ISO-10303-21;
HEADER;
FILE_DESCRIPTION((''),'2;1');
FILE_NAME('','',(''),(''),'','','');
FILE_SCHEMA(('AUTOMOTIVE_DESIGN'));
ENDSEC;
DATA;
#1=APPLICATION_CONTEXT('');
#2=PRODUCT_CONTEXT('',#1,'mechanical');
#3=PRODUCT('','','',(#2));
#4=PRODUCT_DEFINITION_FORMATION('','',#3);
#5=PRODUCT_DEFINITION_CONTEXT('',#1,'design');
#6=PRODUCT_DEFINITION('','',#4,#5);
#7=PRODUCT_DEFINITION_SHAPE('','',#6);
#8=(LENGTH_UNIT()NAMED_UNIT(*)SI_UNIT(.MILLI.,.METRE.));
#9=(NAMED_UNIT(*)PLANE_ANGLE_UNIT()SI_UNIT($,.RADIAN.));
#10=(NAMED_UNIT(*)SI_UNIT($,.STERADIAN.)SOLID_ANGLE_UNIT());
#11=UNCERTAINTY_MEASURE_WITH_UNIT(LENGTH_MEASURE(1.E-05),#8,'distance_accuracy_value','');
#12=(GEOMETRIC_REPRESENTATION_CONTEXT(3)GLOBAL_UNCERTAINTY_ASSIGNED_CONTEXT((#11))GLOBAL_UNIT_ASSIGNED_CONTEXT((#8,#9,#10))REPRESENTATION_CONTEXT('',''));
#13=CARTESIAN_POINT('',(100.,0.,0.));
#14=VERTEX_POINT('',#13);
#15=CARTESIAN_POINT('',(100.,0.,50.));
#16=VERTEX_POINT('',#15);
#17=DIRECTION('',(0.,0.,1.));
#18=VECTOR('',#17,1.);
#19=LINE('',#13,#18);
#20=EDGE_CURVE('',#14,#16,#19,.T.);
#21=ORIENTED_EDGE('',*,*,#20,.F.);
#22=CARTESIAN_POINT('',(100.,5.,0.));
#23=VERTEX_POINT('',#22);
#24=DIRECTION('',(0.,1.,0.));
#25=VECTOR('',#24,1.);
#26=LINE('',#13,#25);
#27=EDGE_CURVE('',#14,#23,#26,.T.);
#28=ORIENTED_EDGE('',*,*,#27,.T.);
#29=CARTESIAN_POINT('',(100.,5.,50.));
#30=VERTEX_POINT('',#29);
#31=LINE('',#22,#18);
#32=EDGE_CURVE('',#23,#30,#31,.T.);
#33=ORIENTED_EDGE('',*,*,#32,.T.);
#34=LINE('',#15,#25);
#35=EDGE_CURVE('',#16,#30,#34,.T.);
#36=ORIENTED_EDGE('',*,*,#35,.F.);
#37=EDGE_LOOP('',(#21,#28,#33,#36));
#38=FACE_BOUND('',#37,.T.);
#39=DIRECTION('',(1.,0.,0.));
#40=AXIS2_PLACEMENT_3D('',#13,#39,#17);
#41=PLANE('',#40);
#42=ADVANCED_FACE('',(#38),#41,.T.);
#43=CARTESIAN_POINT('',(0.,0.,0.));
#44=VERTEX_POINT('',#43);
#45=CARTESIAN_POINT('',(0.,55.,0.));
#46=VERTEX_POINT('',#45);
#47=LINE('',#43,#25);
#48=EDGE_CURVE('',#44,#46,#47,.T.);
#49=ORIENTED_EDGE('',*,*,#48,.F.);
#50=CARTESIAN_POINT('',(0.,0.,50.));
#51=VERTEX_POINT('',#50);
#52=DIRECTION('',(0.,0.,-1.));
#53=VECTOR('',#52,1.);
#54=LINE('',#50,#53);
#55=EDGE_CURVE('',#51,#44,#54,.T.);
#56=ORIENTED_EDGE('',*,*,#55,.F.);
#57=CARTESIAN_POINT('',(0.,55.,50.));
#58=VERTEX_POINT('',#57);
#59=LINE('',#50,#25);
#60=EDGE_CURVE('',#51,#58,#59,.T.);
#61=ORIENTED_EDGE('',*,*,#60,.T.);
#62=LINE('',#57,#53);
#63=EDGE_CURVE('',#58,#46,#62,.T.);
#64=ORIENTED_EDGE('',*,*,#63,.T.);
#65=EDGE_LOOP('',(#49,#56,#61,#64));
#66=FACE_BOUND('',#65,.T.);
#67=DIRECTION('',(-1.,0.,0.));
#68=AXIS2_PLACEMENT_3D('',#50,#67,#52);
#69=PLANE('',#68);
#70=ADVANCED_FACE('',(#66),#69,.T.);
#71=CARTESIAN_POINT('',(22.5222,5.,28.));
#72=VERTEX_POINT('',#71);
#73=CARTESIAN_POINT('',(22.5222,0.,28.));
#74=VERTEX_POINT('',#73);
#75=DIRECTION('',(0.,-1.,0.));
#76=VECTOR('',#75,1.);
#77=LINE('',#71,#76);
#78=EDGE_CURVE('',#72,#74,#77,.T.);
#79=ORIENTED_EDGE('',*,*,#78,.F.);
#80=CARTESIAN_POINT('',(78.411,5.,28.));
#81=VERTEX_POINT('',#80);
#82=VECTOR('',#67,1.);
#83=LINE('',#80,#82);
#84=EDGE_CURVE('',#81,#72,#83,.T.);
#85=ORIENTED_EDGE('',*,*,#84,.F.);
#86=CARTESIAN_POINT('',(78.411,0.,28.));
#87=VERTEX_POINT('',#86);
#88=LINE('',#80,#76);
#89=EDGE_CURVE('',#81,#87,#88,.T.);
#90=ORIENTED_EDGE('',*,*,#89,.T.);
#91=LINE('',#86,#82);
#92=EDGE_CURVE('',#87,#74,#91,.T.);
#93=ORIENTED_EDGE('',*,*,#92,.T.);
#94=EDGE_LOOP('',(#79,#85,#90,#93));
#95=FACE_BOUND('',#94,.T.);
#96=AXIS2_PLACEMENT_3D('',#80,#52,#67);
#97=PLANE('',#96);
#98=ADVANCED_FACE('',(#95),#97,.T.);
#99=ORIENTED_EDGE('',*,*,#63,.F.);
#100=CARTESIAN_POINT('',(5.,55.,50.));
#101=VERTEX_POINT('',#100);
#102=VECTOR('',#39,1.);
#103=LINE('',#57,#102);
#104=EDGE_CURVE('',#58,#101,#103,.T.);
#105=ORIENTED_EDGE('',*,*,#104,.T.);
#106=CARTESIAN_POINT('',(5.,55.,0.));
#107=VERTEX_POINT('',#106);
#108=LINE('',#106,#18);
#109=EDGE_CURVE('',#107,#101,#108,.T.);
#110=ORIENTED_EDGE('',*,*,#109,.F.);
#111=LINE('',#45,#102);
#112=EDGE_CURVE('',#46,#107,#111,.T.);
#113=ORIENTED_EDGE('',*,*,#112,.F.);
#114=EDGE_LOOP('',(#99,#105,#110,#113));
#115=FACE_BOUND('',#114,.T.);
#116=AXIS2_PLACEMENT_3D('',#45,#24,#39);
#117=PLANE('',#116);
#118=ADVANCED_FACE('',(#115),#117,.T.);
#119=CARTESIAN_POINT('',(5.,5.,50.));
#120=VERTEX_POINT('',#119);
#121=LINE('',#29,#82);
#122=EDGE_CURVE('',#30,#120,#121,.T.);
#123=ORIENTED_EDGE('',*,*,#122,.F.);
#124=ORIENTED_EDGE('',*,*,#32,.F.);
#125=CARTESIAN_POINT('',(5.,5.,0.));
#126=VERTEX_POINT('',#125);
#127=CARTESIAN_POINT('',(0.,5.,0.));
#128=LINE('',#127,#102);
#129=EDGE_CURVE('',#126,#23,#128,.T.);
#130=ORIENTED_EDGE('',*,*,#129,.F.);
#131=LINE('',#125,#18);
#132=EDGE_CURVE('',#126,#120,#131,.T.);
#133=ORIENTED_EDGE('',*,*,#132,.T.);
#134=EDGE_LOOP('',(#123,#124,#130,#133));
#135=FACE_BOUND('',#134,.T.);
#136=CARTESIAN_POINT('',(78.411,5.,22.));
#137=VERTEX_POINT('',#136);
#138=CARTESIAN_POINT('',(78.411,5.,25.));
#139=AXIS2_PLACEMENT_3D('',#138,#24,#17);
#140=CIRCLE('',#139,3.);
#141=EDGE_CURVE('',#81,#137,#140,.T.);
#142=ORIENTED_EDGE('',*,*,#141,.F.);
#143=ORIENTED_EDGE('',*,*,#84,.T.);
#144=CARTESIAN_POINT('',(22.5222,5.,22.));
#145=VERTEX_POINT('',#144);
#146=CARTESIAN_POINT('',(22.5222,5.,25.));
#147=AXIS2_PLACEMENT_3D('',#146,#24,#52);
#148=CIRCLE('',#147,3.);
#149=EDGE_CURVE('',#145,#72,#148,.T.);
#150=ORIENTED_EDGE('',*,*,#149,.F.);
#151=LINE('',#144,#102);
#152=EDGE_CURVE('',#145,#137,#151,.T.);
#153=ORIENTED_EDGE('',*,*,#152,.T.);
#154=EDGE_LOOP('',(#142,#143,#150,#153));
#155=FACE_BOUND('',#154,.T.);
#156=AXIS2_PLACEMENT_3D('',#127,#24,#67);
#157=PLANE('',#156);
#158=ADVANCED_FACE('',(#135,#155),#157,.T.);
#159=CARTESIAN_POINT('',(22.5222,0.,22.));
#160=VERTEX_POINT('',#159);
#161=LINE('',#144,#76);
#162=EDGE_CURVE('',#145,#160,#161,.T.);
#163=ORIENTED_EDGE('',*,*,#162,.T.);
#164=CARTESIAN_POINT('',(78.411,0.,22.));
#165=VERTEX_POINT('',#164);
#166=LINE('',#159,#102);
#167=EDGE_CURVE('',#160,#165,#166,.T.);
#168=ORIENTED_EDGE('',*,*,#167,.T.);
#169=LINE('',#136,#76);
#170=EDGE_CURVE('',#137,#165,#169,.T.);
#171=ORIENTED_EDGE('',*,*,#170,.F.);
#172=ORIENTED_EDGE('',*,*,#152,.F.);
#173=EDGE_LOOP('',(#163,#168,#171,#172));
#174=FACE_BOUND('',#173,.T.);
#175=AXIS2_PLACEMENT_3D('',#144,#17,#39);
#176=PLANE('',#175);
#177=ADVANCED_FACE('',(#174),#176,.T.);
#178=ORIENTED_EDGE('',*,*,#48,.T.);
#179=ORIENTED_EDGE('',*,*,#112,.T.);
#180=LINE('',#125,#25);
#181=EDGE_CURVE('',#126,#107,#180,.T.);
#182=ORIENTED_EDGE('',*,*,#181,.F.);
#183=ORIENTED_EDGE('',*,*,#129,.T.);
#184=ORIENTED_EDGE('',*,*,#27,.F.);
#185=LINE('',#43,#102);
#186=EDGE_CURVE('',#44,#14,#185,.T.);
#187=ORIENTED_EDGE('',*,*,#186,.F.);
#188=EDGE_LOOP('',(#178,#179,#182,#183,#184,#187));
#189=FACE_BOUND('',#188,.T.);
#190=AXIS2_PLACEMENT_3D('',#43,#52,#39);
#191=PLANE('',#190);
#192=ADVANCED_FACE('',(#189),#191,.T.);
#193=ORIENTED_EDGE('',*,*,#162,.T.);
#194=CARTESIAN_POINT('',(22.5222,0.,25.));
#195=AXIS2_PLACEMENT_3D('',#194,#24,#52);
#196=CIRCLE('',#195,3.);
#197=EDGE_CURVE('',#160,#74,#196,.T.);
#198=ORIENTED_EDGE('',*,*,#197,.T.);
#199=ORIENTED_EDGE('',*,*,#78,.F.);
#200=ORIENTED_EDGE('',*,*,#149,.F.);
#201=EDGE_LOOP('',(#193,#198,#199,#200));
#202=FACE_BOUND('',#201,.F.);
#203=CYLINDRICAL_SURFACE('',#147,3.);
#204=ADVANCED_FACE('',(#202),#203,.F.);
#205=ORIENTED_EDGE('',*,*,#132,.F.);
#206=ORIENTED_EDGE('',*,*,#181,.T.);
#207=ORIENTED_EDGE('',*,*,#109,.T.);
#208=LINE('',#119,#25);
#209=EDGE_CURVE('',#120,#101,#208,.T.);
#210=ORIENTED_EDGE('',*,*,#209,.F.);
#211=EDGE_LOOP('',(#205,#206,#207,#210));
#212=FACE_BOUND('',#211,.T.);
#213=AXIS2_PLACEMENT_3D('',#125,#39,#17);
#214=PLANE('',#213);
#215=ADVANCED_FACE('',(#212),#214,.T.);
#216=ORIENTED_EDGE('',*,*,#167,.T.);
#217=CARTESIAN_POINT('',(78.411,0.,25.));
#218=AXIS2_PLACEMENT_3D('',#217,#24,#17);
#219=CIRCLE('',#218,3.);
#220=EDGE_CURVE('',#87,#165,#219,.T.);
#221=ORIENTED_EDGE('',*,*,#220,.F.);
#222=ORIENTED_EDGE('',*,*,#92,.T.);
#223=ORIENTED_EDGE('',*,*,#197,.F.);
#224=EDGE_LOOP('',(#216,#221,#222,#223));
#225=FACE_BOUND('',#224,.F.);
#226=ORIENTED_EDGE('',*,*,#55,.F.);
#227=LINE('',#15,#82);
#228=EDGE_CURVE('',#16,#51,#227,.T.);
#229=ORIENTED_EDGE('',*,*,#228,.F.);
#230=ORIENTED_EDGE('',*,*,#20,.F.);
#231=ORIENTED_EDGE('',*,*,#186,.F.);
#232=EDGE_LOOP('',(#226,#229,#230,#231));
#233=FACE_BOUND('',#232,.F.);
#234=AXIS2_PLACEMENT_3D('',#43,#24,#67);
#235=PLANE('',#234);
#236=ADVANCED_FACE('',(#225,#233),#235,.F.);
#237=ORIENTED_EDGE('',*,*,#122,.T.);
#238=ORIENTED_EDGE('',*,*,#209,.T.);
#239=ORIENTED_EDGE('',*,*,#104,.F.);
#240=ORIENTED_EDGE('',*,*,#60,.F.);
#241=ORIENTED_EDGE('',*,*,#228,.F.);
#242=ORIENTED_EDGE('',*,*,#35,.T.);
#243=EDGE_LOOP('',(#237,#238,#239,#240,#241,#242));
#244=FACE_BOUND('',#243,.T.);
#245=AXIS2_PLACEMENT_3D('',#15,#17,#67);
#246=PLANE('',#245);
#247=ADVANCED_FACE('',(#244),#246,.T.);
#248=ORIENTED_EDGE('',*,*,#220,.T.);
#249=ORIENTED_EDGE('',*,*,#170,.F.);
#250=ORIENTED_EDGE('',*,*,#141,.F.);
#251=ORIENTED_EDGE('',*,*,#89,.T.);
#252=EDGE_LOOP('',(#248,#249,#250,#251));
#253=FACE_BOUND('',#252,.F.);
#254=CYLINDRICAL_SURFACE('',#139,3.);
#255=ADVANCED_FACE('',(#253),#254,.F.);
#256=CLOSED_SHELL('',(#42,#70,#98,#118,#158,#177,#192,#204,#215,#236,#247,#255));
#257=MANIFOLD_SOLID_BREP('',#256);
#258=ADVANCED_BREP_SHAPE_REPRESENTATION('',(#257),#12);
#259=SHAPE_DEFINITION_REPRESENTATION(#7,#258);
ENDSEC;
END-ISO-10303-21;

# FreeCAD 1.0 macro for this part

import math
import FreeCAD as App
import Part
import Sketcher
Q = App.Units.Quantity

doc = App.newDocument("Part")
params = doc.addObject("Spreadsheet::Sheet", "Params")
for row, (alias, value) in enumerate([
    ("sketch1_width", "100 mm"),
    ("sketch1_height", "50 mm"),
    ("pad1_length", "5 mm"),
    ("sketch2_width", "5 mm"),
    ("sketch2_height", "50 mm"),
    ("pad2_length", "50 mm"),
    ("sketch3_radius", "3 mm"),
    ("pocket1_length", "5 mm"),
], start=1):
    params.set(f"A{row}", alias)
    params.set(f"B{row}", "=" + value)
    params.setAlias(f"B{row}", alias)

body = doc.addObject("PartDesign::Body", "Body")

# Sketch on XZ plane
sketch1 = doc.addObject("Sketcher::SketchObject", "Sketch")
body.addObject(sketch1)
sketch1.AttachmentSupport = (doc.XZ_Plane, [""])
sketch1.MapMode = "FlatFace"
sketch1.addGeometry([
    Part.LineSegment(App.Vector(100, 0, 0), App.Vector(0, 0, 0)),
    Part.LineSegment(App.Vector(0, 0, 0), App.Vector(0, 50, 0)),
    Part.LineSegment(App.Vector(0, 50, 0), App.Vector(100, 50, 0)),
    Part.LineSegment(App.Vector(100, 50, 0), App.Vector(100, 0, 0)),
], False)
sketch1.addConstraint([
    Sketcher.Constraint("Coincident", 0, 2, 1, 1),
    Sketcher.Constraint("Coincident", 1, 2, 2, 1),
    Sketcher.Constraint("Coincident", 2, 2, 3, 1),
    Sketcher.Constraint("Coincident", 3, 2, 0, 1),
    Sketcher.Constraint("Horizontal", 0),
    Sketcher.Constraint("Vertical", 1),
    Sketcher.Constraint("Horizontal", 2),
    Sketcher.Constraint("Vertical", 3),
    Sketcher.Constraint("Coincident", 0, 2, -1, 1),
    Sketcher.Constraint("DistanceX", 0, 2, 0, 1, Q("100 mm")),
    Sketcher.Constraint("DistanceY", 1, 1, 1, 2, Q("50 mm")),
])
sketch1.setExpression("Constraints[9]", "Params.sketch1_width")
sketch1.setExpression("Constraints[10]", "Params.sketch1_height")
pad1 = doc.addObject("PartDesign::Pad", "Pad")
body.addObject(pad1)
pad1.Profile = sketch1
pad1.setExpression("Length", "Params.pad1_length")
pad1.Reversed = True

# Sketch on XZ plane
sketch2 = doc.addObject("Sketcher::SketchObject", "Sketch001")
body.addObject(sketch2)
sketch2.AttachmentSupport = (doc.XZ_Plane, [""])
sketch2.MapMode = "FlatFace"
sketch2.AttachmentOffset = App.Placement(App.Vector(0, 0, -5), App.Rotation())
sketch2.addGeometry([
    Part.LineSegment(App.Vector(0, 0, 0), App.Vector(0, 50, 0)),
    Part.LineSegment(App.Vector(0, 50, 0), App.Vector(5, 50, 0)),
    Part.LineSegment(App.Vector(5, 50, 0), App.Vector(5, 0, 0)),
    Part.LineSegment(App.Vector(5, 0, 0), App.Vector(0, 0, 0)),
], False)
sketch2.addConstraint([
    Sketcher.Constraint("Coincident", 0, 2, 1, 1),
    Sketcher.Constraint("Coincident", 1, 2, 2, 1),
    Sketcher.Constraint("Coincident", 2, 2, 3, 1),
    Sketcher.Constraint("Coincident", 3, 2, 0, 1),
    Sketcher.Constraint("Vertical", 0),
    Sketcher.Constraint("Horizontal", 1),
    Sketcher.Constraint("Vertical", 2),
    Sketcher.Constraint("Horizontal", 3),
    Sketcher.Constraint("Coincident", 3, 2, -1, 1),
    Sketcher.Constraint("DistanceX", 1, 1, 1, 2, Q("5 mm")),
    Sketcher.Constraint("DistanceY", 0, 1, 0, 2, Q("50 mm")),
])
sketch2.setExpression("Constraints[9]", "Params.sketch2_width")
sketch2.setExpression("Constraints[10]", "Params.sketch2_height")
pad2 = doc.addObject("PartDesign::Pad", "Pad001")
body.addObject(pad2)
pad2.Profile = sketch2
pad2.setExpression("Length", "Params.pad2_length")
pad2.Reversed = True

# Sketch on XZ plane
sketch3 = doc.addObject("Sketcher::SketchObject", "Sketch002")
body.addObject(sketch3)
sketch3.AttachmentSupport = (doc.XZ_Plane, [""])
sketch3.MapMode = "FlatFace"
sketch3.AttachmentOffset = App.Placement(App.Vector(0, 0, -5), App.Rotation())
sketch3.addGeometry([
    Part.LineSegment(App.Vector(22.5222, 28, 0), App.Vector(78.411, 28, 0)),
    Part.ArcOfCircle(Part.Circle(App.Vector(78.411, 25, 0), App.Vector(0, 0, 1), 3), math.radians(-90), math.radians(90)),
    Part.LineSegment(App.Vector(78.411, 22, 0), App.Vector(22.5222, 22, 0)),
    Part.ArcOfCircle(Part.Circle(App.Vector(22.5222, 25, 0), App.Vector(0, 0, 1), 3), math.radians(90), math.radians(270)),
], False)
sketch3.addConstraint([
    Sketcher.Constraint("Tangent", 0, 2, 1, 2),
    Sketcher.Constraint("Tangent", 1, 1, 2, 1),
    Sketcher.Constraint("Tangent", 2, 2, 3, 2),
    Sketcher.Constraint("Tangent", 3, 1, 0, 1),
    Sketcher.Constraint("Horizontal", 0),
    Sketcher.Constraint("Horizontal", 2),
    Sketcher.Constraint("Radius", 1, Q("3 mm")),
    Sketcher.Constraint("DistanceY", -1, 1, 1, 3, Q("25 mm")),
    Sketcher.Constraint("DistanceX", 0, 1, 0, 2, Q("55.8888 mm")),
    Sketcher.Constraint("DistanceX", -1, 1, 1, 3, Q("78.411 mm")),
])
sketch3.setExpression("Constraints[6]", "Params.sketch3_radius")
pocket1 = doc.addObject("PartDesign::Pocket", "Pocket")
body.addObject(pocket1)
pocket1.Profile = sketch3
pocket1.setExpression("Length", "Params.pocket1_length")
pocket1.Reversed = True

doc.recompute()
